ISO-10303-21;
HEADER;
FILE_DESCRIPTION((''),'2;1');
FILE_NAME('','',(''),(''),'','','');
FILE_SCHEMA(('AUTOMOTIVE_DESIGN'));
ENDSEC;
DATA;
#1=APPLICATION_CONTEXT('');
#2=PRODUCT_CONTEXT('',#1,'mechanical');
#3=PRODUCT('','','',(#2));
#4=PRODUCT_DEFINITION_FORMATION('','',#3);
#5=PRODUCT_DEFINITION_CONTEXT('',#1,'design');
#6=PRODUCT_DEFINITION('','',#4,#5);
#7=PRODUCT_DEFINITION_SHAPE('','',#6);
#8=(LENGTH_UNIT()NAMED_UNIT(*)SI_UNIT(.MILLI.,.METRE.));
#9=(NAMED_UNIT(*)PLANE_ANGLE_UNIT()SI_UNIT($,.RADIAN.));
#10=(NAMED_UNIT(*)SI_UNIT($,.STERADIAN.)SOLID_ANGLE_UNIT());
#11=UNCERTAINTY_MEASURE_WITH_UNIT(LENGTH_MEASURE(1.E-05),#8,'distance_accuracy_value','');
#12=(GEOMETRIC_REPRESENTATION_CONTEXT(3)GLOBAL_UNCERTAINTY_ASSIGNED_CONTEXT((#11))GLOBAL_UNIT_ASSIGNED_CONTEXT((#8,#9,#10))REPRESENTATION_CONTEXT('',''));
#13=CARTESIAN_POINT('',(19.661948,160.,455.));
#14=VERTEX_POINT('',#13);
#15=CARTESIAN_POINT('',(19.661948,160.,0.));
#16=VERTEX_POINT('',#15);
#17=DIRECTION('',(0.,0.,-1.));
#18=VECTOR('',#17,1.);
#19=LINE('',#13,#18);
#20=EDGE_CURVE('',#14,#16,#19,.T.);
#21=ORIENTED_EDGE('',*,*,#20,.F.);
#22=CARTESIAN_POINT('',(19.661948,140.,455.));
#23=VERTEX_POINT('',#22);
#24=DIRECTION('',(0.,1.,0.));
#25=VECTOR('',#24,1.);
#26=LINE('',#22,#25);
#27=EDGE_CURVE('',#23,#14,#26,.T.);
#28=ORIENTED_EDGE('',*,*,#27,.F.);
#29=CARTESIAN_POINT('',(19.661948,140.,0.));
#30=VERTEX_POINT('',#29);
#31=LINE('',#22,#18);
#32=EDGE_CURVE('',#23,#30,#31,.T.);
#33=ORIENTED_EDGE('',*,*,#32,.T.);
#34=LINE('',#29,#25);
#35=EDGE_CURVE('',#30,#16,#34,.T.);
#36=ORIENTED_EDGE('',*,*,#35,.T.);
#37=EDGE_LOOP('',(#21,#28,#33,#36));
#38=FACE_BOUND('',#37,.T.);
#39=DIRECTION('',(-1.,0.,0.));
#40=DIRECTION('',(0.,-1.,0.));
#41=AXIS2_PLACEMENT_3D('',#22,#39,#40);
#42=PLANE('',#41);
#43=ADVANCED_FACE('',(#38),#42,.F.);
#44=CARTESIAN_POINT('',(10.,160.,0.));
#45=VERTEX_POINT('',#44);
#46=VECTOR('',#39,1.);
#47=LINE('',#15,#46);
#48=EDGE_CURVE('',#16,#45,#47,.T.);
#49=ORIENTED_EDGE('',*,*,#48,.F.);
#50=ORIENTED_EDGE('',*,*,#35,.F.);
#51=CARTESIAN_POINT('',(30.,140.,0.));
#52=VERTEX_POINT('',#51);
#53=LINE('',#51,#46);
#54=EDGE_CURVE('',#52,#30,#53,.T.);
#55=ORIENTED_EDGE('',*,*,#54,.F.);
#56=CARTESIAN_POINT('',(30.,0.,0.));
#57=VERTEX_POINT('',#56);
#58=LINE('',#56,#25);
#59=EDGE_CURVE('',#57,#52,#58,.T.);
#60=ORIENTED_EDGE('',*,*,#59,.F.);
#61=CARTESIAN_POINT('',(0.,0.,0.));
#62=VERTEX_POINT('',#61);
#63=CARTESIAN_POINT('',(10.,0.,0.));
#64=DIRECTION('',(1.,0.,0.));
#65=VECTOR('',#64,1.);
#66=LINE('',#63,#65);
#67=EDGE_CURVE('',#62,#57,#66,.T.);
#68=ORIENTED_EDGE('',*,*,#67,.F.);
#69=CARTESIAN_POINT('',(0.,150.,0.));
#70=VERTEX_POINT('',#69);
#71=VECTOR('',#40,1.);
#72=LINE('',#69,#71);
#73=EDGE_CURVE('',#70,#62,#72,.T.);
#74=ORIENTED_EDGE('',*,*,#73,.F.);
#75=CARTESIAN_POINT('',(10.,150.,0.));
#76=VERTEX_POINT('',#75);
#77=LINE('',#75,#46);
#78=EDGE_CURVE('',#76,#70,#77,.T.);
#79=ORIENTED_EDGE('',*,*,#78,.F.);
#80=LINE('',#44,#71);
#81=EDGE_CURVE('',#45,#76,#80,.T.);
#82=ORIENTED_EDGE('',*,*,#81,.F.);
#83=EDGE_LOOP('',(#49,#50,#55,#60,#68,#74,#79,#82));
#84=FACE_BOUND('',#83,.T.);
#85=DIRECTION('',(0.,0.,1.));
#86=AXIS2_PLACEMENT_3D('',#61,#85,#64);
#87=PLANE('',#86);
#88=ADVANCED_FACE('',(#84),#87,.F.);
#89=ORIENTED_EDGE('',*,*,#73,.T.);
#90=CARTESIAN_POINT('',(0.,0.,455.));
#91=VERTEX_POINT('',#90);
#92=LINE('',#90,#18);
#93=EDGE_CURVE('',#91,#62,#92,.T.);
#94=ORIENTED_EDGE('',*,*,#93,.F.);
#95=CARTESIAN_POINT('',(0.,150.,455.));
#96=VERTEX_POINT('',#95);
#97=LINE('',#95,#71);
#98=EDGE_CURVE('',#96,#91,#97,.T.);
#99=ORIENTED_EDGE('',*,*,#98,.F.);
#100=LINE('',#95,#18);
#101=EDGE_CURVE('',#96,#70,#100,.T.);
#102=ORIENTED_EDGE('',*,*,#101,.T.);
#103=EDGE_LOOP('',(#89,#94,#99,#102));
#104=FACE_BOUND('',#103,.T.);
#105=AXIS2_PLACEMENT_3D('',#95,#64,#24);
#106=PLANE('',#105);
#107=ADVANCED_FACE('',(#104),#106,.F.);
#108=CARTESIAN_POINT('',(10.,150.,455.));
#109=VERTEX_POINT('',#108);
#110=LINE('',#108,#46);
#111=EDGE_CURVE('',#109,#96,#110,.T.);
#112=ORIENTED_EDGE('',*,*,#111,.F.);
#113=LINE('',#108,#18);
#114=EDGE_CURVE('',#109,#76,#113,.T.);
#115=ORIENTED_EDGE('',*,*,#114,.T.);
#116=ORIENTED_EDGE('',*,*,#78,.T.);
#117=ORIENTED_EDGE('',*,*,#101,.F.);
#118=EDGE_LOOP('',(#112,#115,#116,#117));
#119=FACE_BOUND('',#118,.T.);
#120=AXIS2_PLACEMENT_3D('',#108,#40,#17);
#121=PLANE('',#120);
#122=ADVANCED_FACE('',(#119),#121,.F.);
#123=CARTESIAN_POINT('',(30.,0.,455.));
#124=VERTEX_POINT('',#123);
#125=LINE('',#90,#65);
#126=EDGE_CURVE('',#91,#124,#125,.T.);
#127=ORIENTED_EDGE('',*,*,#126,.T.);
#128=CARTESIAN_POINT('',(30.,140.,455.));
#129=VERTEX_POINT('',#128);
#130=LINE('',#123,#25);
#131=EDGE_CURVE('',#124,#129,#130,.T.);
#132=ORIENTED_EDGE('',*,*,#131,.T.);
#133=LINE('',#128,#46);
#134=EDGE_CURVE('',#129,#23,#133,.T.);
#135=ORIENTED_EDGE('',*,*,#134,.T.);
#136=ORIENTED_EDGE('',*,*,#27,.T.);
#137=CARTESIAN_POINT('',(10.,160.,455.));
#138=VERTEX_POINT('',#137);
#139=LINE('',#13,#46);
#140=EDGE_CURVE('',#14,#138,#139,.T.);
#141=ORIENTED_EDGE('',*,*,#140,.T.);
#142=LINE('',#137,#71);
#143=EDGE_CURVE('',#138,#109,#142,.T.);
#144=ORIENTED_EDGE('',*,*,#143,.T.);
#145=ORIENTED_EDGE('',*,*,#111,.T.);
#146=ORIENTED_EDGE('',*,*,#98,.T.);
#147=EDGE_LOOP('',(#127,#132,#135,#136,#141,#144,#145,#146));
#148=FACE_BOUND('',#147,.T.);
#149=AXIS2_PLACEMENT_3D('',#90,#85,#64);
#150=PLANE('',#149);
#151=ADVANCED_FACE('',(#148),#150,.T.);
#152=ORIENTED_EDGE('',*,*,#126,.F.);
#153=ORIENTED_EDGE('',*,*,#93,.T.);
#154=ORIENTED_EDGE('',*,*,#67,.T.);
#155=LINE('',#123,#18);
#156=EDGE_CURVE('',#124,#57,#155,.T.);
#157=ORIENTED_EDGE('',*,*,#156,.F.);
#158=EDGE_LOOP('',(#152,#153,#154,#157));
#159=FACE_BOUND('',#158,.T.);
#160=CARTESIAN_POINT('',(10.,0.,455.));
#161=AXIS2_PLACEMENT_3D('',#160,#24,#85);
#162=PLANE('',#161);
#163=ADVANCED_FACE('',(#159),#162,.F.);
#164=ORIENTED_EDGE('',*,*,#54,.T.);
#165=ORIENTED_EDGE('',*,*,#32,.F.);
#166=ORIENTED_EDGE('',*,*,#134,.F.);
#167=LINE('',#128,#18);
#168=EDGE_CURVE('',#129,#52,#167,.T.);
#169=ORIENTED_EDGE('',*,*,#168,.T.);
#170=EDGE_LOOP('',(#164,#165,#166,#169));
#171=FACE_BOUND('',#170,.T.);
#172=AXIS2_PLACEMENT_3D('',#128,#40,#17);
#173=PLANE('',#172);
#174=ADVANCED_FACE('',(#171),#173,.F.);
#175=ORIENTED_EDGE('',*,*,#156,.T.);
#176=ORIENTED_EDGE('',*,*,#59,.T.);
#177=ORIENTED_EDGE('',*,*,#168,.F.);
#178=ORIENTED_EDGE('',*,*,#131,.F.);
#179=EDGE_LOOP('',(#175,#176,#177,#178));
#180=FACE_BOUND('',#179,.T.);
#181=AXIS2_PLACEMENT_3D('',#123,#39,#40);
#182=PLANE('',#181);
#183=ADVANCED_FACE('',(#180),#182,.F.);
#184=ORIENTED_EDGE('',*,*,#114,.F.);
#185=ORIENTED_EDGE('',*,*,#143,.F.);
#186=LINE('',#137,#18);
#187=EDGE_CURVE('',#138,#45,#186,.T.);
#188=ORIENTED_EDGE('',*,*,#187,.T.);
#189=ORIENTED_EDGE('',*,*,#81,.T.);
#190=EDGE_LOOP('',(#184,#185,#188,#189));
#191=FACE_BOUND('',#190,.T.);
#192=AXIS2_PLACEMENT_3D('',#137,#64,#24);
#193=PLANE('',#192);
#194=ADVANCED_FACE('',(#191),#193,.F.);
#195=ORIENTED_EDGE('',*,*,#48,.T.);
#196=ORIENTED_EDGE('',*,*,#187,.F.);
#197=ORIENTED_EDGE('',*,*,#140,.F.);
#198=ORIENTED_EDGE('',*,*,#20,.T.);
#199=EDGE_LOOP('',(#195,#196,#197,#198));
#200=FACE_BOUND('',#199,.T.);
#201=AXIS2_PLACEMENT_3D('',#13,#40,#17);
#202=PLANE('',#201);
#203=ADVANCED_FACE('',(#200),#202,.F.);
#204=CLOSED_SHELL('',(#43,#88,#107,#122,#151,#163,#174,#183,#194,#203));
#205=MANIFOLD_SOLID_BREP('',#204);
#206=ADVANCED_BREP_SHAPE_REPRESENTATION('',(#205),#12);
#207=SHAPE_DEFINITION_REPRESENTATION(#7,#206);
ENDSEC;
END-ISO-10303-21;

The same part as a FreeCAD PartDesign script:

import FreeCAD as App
import Part
import Sketcher
from FreeCAD import Vector
Q = App.Units.Quantity

doc = App.newDocument("Part")
body = doc.addObject("PartDesign::Body", "Body")

# Sketch on XY plane
sketch1 = body.newObject("Sketcher::SketchObject", "Sketch")
sketch1.AttachmentSupport = (doc.getObject("XY_Plane"), [""])
sketch1.MapMode = "FlatFace"
sketch1.addGeometry([
    Part.LineSegment(Vector(0, 0, 0), Vector(30, 0, 0)),  # 0
    Part.LineSegment(Vector(30, 0, 0), Vector(30, 140, 0)),  # 1
    Part.LineSegment(Vector(30, 140, 0), Vector(20, 140, 0)),  # 2
    Part.LineSegment(Vector(20, 140, 0), Vector(20, 160, 0)),  # 3
    Part.LineSegment(Vector(20, 160, 0), Vector(10, 160, 0)),  # 4
    Part.LineSegment(Vector(10, 160, 0), Vector(10, 150, 0)),  # 5
    Part.LineSegment(Vector(10, 150, 0), Vector(0, 150, 0)),  # 6
    Part.LineSegment(Vector(0, 150, 0), Vector(0, 0, 0)),  # 7
], False)
sketch1.addConstraint([
    Sketcher.Constraint("Coincident", 0, 2, 1, 1),
    Sketcher.Constraint("Coincident", 1, 2, 2, 1),
    Sketcher.Constraint("Coincident", 2, 2, 3, 1),
    Sketcher.Constraint("Coincident", 3, 2, 4, 1),
    Sketcher.Constraint("Coincident", 4, 2, 5, 1),
    Sketcher.Constraint("Coincident", 5, 2, 6, 1),
    Sketcher.Constraint("Coincident", 6, 2, 7, 1),
    Sketcher.Constraint("Coincident", 7, 2, 0, 1),
    Sketcher.Constraint("Horizontal", 0),
    Sketcher.Constraint("Vertical", 1),
    Sketcher.Constraint("Horizontal", 2),
    Sketcher.Constraint("Vertical", 3),
    Sketcher.Constraint("Horizontal", 4),
    Sketcher.Constraint("Vertical", 5),
    Sketcher.Constraint("Horizontal", 6),
    Sketcher.Constraint("Vertical", 7),
    Sketcher.Constraint("Coincident", 7, 2, -1, 1),
    Sketcher.Constraint("Equal", 6, 5),
    Sketcher.Constraint("DistanceX", 0, 1, 0, 2, Q("30 mm")),
    Sketcher.Constraint("DistanceX", 6, 2, 6, 1, Q("10 mm")),
    Sketcher.Constraint("DistanceY", 1, 1, 1, 2, Q("140 mm")),
    Sketcher.Constraint("DistanceY", 3, 1, 3, 2, Q("20 mm")),
    Sketcher.Constraint("DistanceX", 2, 2, 2, 1, Q("10.338052 mm")),
])
pad1 = body.newObject("PartDesign::Pad", "Pad")
pad1.Profile = sketch1
pad1.Length = 455

doc.recompute()
